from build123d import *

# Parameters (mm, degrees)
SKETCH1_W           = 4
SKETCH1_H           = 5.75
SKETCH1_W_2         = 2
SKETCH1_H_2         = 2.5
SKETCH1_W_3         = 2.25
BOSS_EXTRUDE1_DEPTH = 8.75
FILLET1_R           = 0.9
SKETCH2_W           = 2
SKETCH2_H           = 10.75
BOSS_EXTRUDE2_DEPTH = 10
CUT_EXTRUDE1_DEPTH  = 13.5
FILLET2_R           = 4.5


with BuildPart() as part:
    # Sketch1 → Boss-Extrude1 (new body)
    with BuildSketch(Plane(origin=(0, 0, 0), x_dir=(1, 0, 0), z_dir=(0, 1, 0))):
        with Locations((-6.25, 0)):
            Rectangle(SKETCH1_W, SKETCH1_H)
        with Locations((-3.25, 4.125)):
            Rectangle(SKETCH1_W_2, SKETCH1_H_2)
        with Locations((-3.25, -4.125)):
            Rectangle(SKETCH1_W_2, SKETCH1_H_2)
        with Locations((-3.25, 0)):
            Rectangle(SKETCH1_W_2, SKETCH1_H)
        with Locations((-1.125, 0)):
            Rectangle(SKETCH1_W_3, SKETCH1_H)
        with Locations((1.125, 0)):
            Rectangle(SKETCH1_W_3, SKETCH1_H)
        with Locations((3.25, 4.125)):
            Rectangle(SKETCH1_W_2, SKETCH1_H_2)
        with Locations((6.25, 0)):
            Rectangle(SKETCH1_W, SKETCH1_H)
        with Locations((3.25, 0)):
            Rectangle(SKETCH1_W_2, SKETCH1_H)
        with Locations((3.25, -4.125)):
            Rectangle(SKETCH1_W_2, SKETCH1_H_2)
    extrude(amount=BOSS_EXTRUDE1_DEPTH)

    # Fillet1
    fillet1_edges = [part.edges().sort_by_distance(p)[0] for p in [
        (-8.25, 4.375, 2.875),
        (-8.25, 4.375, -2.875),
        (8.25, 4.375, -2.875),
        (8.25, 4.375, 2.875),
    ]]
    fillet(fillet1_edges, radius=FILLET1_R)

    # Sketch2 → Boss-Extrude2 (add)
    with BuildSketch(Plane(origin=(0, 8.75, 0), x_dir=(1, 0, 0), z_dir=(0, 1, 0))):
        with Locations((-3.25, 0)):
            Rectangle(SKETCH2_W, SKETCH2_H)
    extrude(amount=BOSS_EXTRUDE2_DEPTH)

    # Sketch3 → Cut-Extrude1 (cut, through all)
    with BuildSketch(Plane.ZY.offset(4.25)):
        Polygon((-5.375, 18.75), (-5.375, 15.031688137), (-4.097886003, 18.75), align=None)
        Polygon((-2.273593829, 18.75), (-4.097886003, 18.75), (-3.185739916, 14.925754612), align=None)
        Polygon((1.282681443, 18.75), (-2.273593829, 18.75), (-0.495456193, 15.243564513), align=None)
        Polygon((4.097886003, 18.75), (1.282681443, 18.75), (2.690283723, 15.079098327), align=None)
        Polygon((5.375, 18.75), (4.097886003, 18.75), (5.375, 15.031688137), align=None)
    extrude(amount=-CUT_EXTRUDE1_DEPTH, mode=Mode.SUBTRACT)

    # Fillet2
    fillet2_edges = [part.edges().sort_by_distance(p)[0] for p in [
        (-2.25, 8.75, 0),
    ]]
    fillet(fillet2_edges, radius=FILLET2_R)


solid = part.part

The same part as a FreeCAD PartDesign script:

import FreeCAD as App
import Part
import Sketcher
from FreeCAD import Vector
Q = App.Units.Quantity


def edges_at(feature, points):
    """Names of the edges that pass closest to the given points."""
    edges = feature.Shape.Edges
    near = lambda p: min(range(len(edges)), key=lambda i: edges[i].distToShape(Part.Vertex(*p))[0])
    return sorted({f"Edge{near(p) + 1}" for p in points})

doc = App.newDocument("Part")
body = doc.addObject("PartDesign::Body", "Body")

# Sketch on XZ plane
sketch1 = doc.addObject("Sketcher::SketchObject", "Sketch")
body.addObject(sketch1)
sketch1.AttachmentSupport = (doc.XZ_Plane, [""])
sketch1.MapMode = "FlatFace"
sketch1.addGeometry(Part.LineSegment(Vector(-8.2, -2.9, 0), Vector(-8.2, 2.9, 0)), False)
sketch1.addGeometry(Part.LineSegment(Vector(-8.2, 2.9, 0), Vector(-4.2, 2.9, 0)), False)
sketch1.addGeometry(Part.LineSegment(Vector(-4.2, 2.9, 0), Vector(-4.2, 5.4, 0)), False)
sketch1.addGeometry(Part.LineSegment(Vector(-4.2, 5.4, 0), Vector(-2.2, 5.4, 0)), False)
sketch1.addGeometry(Part.LineSegment(Vector(-2.2, 5.4, 0), Vector(-2.2, 2.9, 0)), False)
sketch1.addGeometry(Part.LineSegment(Vector(-2.2, 2.9, 0), Vector(2.2, 2.9, 0)), False)
sketch1.addGeometry(Part.LineSegment(Vector(2.2, 2.9, 0), Vector(2.2, 5.4, 0)), False)
sketch1.addGeometry(Part.LineSegment(Vector(2.2, 5.4, 0), Vector(4.2, 5.4, 0)), False)
sketch1.addGeometry(Part.LineSegment(Vector(4.2, 5.4, 0), Vector(4.2, 2.9, 0)), False)
sketch1.addGeometry(Part.LineSegment(Vector(4.2, 2.9, 0), Vector(8.2, 2.9, 0)), False)
sketch1.addGeometry(Part.LineSegment(Vector(8.2, 2.9, 0), Vector(8.2, -2.9, 0)), False)
sketch1.addGeometry(Part.LineSegment(Vector(8.2, -2.9, 0), Vector(4.2, -2.9, 0)), False)
sketch1.addGeometry(Part.LineSegment(Vector(4.2, -2.9, 0), Vector(4.2, -5.4, 0)), False)
sketch1.addGeometry(Part.LineSegment(Vector(4.2, -5.4, 0), Vector(2.2, -5.4, 0)), False)
sketch1.addGeometry(Part.LineSegment(Vector(2.2, -5.4, 0), Vector(2.2, -2.9, 0)), False)
sketch1.addGeometry(Part.LineSegment(Vector(2.2, -2.9, 0), Vector(-2.2, -2.9, 0)), False)
sketch1.addGeometry(Part.LineSegment(Vector(-2.2, -2.9, 0), Vector(-2.2, -5.4, 0)), False)
sketch1.addGeometry(Part.LineSegment(Vector(-2.2, -5.4, 0), Vector(-4.2, -5.4, 0)), False)
sketch1.addGeometry(Part.LineSegment(Vector(-4.2, -5.4, 0), Vector(-4.2, -2.9, 0)), False)
sketch1.addGeometry(Part.LineSegment(Vector(-4.2, -2.9, 0), Vector(-8.2, -2.9, 0)), False)
sketch1.addConstraint(Sketcher.Constraint("Coincident", 0, 2, 1, 1))
sketch1.addConstraint(Sketcher.Constraint("Coincident", 1, 2, 2, 1))
sketch1.addConstraint(Sketcher.Constraint("Coincident", 2, 2, 3, 1))
sketch1.addConstraint(Sketcher.Constraint("Coincident", 3, 2, 4, 1))
sketch1.addConstraint(Sketcher.Constraint("Coincident", 4, 2, 5, 1))
sketch1.addConstraint(Sketcher.Constraint("Coincident", 5, 2, 6, 1))
sketch1.addConstraint(Sketcher.Constraint("Coincident", 6, 2, 7, 1))
sketch1.addConstraint(Sketcher.Constraint("Coincident", 7, 2, 8, 1))
sketch1.addConstraint(Sketcher.Constraint("Coincident", 8, 2, 9, 1))
sketch1.addConstraint(Sketcher.Constraint("Coincident", 9, 2, 10, 1))
sketch1.addConstraint(Sketcher.Constraint("Coincident", 10, 2, 11, 1))
sketch1.addConstraint(Sketcher.Constraint("Coincident", 11, 2, 12, 1))
sketch1.addConstraint(Sketcher.Constraint("Coincident", 12, 2, 13, 1))
sketch1.addConstraint(Sketcher.Constraint("Coincident", 13, 2, 14, 1))
sketch1.addConstraint(Sketcher.Constraint("Coincident", 14, 2, 15, 1))
sketch1.addConstraint(Sketcher.Constraint("Coincident", 15, 2, 16, 1))
sketch1.addConstraint(Sketcher.Constraint("Coincident", 16, 2, 17, 1))
sketch1.addConstraint(Sketcher.Constraint("Coincident", 17, 2, 18, 1))
sketch1.addConstraint(Sketcher.Constraint("Coincident", 18, 2, 19, 1))
sketch1.addConstraint(Sketcher.Constraint("Coincident", 19, 2, 0, 1))
sketch1.addConstraint(Sketcher.Constraint("Vertical", 0))
sketch1.addConstraint(Sketcher.Constraint("Horizontal", 1))
sketch1.addConstraint(Sketcher.Constraint("Vertical", 2))
sketch1.addConstraint(Sketcher.Constraint("Horizontal", 3))
sketch1.addConstraint(Sketcher.Constraint("Vertical", 4))
sketch1.addConstraint(Sketcher.Constraint("Horizontal", 5))
sketch1.addConstraint(Sketcher.Constraint("Vertical", 6))
sketch1.addConstraint(Sketcher.Constraint("Horizontal", 7))
sketch1.addConstraint(Sketcher.Constraint("Vertical", 8))
sketch1.addConstraint(Sketcher.Constraint("Horizontal", 9))
sketch1.addConstraint(Sketcher.Constraint("Vertical", 10))
sketch1.addConstraint(Sketcher.Constraint("Horizontal", 11))
sketch1.addConstraint(Sketcher.Constraint("Vertical", 12))
sketch1.addConstraint(Sketcher.Constraint("Horizontal", 13))
sketch1.addConstraint(Sketcher.Constraint("Vertical", 14))
sketch1.addConstraint(Sketcher.Constraint("Horizontal", 15))
sketch1.addConstraint(Sketcher.Constraint("Vertical", 16))
sketch1.addConstraint(Sketcher.Constraint("Horizontal", 17))
sketch1.addConstraint(Sketcher.Constraint("Vertical", 18))
sketch1.addConstraint(Sketcher.Constraint("Horizontal", 19))
sketch1.addConstraint(Sketcher.Constraint("Symmetric", 0, 2, 10, 2, -1, 1))
sketch1.addConstraint(Sketcher.Constraint("Symmetric", 2, 2, 12, 2, -1, 1))
sketch1.addConstraint(Sketcher.Constraint("Symmetric", 4, 2, 14, 2, -1, 1))
sketch1.addConstraint(Sketcher.Constraint("Symmetric", 6, 2, 16, 2, -1, 1))
sketch1.addConstraint(Sketcher.Constraint("Symmetric", 8, 2, 18, 2, -1, 1))
sketch1.addConstraint(Sketcher.Constraint("Symmetric", 3, 2, 6, 2, -2))
sketch1.addConstraint(Sketcher.Constraint("Symmetric", 1, 2, 8, 2, -2))
sketch1.addConstraint(Sketcher.Constraint("Horizontal", 1, 2, 4, 2))
sketch1.addConstraint(Sketcher.Constraint("DistanceX", 1, 1, 1, 2, Q("4 mm")))
sketch1.addConstraint(Sketcher.Constraint("DistanceX", 3, 1, 3, 2, Q("2 mm")))
sketch1.addConstraint(Sketcher.Constraint("DistanceX", 5, 1, 5, 2, Q("4.5 mm")))
sketch1.addConstraint(Sketcher.Constraint("DistanceY", 2, 1, 2, 2, Q("2.5 mm")))
sketch1.addConstraint(Sketcher.Constraint("DistanceY", 0, 1, 0, 2, Q("5.75 mm")))
pad1 = doc.addObject("PartDesign::Pad", "Pad")
body.addObject(pad1)
pad1.Profile = sketch1
pad1.Length = 8.75
pad1.Reversed = True
doc.recompute()

fillet = doc.addObject("PartDesign::Fillet", "Fillet")
body.addObject(fillet)
fillet.Base = (pad1, edges_at(pad1, [
    (-8.25, 4.375, 2.875),
    (-8.25, 4.375, -2.875),
    (8.25, 4.375, -2.875),
    (8.25, 4.375, 2.875),
]))
fillet.Radius = 0.9

# Sketch on XZ plane
sketch2 = doc.addObject("Sketcher::SketchObject", "Sketch001")
body.addObject(sketch2)
sketch2.AttachmentSupport = (doc.XZ_Plane, [""])
sketch2.MapMode = "FlatFace"
sketch2.AttachmentOffset = App.Placement(Vector(0, 0, -8.75), App.Rotation())
sketch2.addGeometry(Part.LineSegment(Vector(-4.2, -5.4, 0), Vector(-4.2, 5.4, 0)), False)
sketch2.addGeometry(Part.LineSegment(Vector(-4.2, 5.4, 0), Vector(-2.2, 5.4, 0)), False)
sketch2.addGeometry(Part.LineSegment(Vector(-2.2, 5.4, 0), Vector(-2.2, -5.4, 0)), False)
sketch2.addGeometry(Part.LineSegment(Vector(-2.2, -5.4, 0), Vector(-4.2, -5.4, 0)), False)
sketch2.addConstraint(Sketcher.Constraint("Coincident", 0, 2, 1, 1))
sketch2.addConstraint(Sketcher.Constraint("Coincident", 1, 2, 2, 1))
sketch2.addConstraint(Sketcher.Constraint("Coincident", 2, 2, 3, 1))
sketch2.addConstraint(Sketcher.Constraint("Coincident", 3, 2, 0, 1))
sketch2.addConstraint(Sketcher.Constraint("Vertical", 0))
sketch2.addConstraint(Sketcher.Constraint("Horizontal", 1))
sketch2.addConstraint(Sketcher.Constraint("Vertical", 2))
sketch2.addConstraint(Sketcher.Constraint("Horizontal", 3))
sketch2.addConstraint(Sketcher.Constraint("DistanceX", 1, 1, 1, 2, Q("2 mm")))
sketch2.addConstraint(Sketcher.Constraint("DistanceY", 0, 1, 0, 2, Q("10.75 mm")))
sketch2.addConstraint(Sketcher.Constraint("DistanceX", 0, 2, -1, 1, Q("4.25 mm")))
sketch2.addConstraint(Sketcher.Constraint("DistanceY", -1, 1, 0, 2, Q("5.375 mm")))
pad2 = doc.addObject("PartDesign::Pad", "Pad001")
body.addObject(pad2)
pad2.Profile = sketch2
pad2.Length = 10
pad2.Reversed = True

# Sketch on YZ plane
sketch3 = doc.addObject("Sketcher::SketchObject", "Sketch002")
body.addObject(sketch3)
sketch3.AttachmentSupport = (doc.YZ_Plane, [""])
sketch3.MapMode = "FlatFace"
sketch3.AttachmentOffset = App.Placement(Vector(0, 0, -4.25), App.Rotation())
sketch3.addGeometry(Part.LineSegment(Vector(18.8, -5.4, 0), Vector(15, -5.4, 0)), False)
sketch3.addGeometry(Part.LineSegment(Vector(15, -5.4, 0), Vector(18.8, -4.1, 0)), False)
sketch3.addGeometry(Part.LineSegment(Vector(18.8, -4.1, 0), Vector(18.8, -5.4, 0)), False)
sketch3.addGeometry(Part.LineSegment(Vector(18.8, -2.3, 0), Vector(18.8, -4.1, 0)), False)
sketch3.addGeometry(Part.LineSegment(Vector(18.8, -4.1, 0), Vector(14.9, -3.2, 0)), False)
sketch3.addGeometry(Part.LineSegment(Vector(14.9, -3.2, 0), Vector(18.8, -2.3, 0)), False)
sketch3.addGeometry(Part.LineSegment(Vector(18.8, 1.3, 0), Vector(18.8, -2.3, 0)), False)
sketch3.addGeometry(Part.LineSegment(Vector(18.8, -2.3, 0), Vector(15.2, -0.5, 0)), False)
sketch3.addGeometry(Part.LineSegment(Vector(15.2, -0.5, 0), Vector(18.8, 1.3, 0)), False)
sketch3.addGeometry(Part.LineSegment(Vector(18.8, 4.1, 0), Vector(18.8, 1.3, 0)), False)
sketch3.addGeometry(Part.LineSegment(Vector(18.8, 1.3, 0), Vector(15.1, 2.7, 0)), False)
sketch3.addGeometry(Part.LineSegment(Vector(15.1, 2.7, 0), Vector(18.8, 4.1, 0)), False)
sketch3.addGeometry(Part.LineSegment(Vector(18.8, 5.4, 0), Vector(18.8, 4.1, 0)), False)
sketch3.addGeometry(Part.LineSegment(Vector(18.8, 4.1, 0), Vector(15, 5.4, 0)), False)
sketch3.addGeometry(Part.LineSegment(Vector(15, 5.4, 0), Vector(18.8, 5.4, 0)), False)
sketch3.addConstraint(Sketcher.Constraint("Coincident", 0, 2, 1, 1))
sketch3.addConstraint(Sketcher.Constraint("Coincident", 1, 2, 2, 1))
sketch3.addConstraint(Sketcher.Constraint("Coincident", 2, 2, 0, 1))
sketch3.addConstraint(Sketcher.Constraint("Coincident", 3, 2, 4, 1))
sketch3.addConstraint(Sketcher.Constraint("Coincident", 4, 2, 5, 1))
sketch3.addConstraint(Sketcher.Constraint("Coincident", 5, 2, 3, 1))
sketch3.addConstraint(Sketcher.Constraint("Coincident", 6, 2, 7, 1))
sketch3.addConstraint(Sketcher.Constraint("Coincident", 7, 2, 8, 1))
sketch3.addConstraint(Sketcher.Constraint("Coincident", 8, 2, 6, 1))
sketch3.addConstraint(Sketcher.Constraint("Coincident", 9, 2, 10, 1))
sketch3.addConstraint(Sketcher.Constraint("Coincident", 10, 2, 11, 1))
sketch3.addConstraint(Sketcher.Constraint("Coincident", 11, 2, 9, 1))
sketch3.addConstraint(Sketcher.Constraint("Coincident", 12, 2, 13, 1))
sketch3.addConstraint(Sketcher.Constraint("Coincident", 13, 2, 14, 1))
sketch3.addConstraint(Sketcher.Constraint("Coincident", 14, 2, 12, 1))
sketch3.addConstraint(Sketcher.Constraint("Horizontal", 0))
sketch3.addConstraint(Sketcher.Constraint("Vertical", 2))
sketch3.addConstraint(Sketcher.Constraint("Vertical", 3))
sketch3.addConstraint(Sketcher.Constraint("Vertical", 6))
sketch3.addConstraint(Sketcher.Constraint("Vertical", 9))
sketch3.addConstraint(Sketcher.Constraint("Vertical", 12))
sketch3.addConstraint(Sketcher.Constraint("Horizontal", 14))
sketch3.addConstraint(Sketcher.Constraint("Coincident", 3, 2, 1, 2))
sketch3.addConstraint(Sketcher.Constraint("Coincident", 6, 2, 5, 2))
sketch3.addConstraint(Sketcher.Constraint("Coincident", 9, 2, 8, 2))
sketch3.addConstraint(Sketcher.Constraint("Coincident", 12, 2, 11, 2))
sketch3.addConstraint(Sketcher.Constraint("Symmetric", 0, 2, 13, 2, -1))
sketch3.addConstraint(Sketcher.Constraint("Equal", 2, 12))
sketch3.addConstraint(Sketcher.Constraint("Equal", 1, 4))
sketch3.addConstraint(Sketcher.Constraint("Equal", 4, 5))
sketch3.addConstraint(Sketcher.Constraint("Equal", 5, 7))
sketch3.addConstraint(Sketcher.Constraint("Equal", 7, 8))
sketch3.addConstraint(Sketcher.Constraint("Equal", 8, 10))
sketch3.addConstraint(Sketcher.Constraint("Equal", 10, 11))
sketch3.addConstraint(Sketcher.Constraint("DistanceX", -1, 1, 1, 2, Q("18.75 mm")))
sketch3.addConstraint(Sketcher.Constraint("DistanceY", 0, 2, -1, 1, Q("5.375 mm")))
sketch3.addConstraint(Sketcher.Constraint("DistanceX", 0, 2, 0, 1, Q("3.718312 mm")))
sketch3.addConstraint(Sketcher.Constraint("DistanceX", -1, 1, 10, 2, Q("15.079098 mm")))
sketch3.addConstraint(Sketcher.Constraint("Distance", 1, Q("3.931522 mm")))
sketch3.addConstraint(Sketcher.Constraint("DistanceY", 3, 2, 3, 1, Q("1.824292 mm")))
pocket1 = doc.addObject("PartDesign::Pocket", "Pocket")
body.addObject(pocket1)
pocket1.Profile = sketch3
pocket1.Type = "ThroughAll"
pocket1.Reversed = True
doc.recompute()

fillet2 = doc.addObject("PartDesign::Fillet", "Fillet001")
body.addObject(fillet2)
fillet2.Base = (pocket1, edges_at(pocket1, [(-2.25, 8.75, 0)]))
fillet2.Radius = 4.5

doc.recompute()
